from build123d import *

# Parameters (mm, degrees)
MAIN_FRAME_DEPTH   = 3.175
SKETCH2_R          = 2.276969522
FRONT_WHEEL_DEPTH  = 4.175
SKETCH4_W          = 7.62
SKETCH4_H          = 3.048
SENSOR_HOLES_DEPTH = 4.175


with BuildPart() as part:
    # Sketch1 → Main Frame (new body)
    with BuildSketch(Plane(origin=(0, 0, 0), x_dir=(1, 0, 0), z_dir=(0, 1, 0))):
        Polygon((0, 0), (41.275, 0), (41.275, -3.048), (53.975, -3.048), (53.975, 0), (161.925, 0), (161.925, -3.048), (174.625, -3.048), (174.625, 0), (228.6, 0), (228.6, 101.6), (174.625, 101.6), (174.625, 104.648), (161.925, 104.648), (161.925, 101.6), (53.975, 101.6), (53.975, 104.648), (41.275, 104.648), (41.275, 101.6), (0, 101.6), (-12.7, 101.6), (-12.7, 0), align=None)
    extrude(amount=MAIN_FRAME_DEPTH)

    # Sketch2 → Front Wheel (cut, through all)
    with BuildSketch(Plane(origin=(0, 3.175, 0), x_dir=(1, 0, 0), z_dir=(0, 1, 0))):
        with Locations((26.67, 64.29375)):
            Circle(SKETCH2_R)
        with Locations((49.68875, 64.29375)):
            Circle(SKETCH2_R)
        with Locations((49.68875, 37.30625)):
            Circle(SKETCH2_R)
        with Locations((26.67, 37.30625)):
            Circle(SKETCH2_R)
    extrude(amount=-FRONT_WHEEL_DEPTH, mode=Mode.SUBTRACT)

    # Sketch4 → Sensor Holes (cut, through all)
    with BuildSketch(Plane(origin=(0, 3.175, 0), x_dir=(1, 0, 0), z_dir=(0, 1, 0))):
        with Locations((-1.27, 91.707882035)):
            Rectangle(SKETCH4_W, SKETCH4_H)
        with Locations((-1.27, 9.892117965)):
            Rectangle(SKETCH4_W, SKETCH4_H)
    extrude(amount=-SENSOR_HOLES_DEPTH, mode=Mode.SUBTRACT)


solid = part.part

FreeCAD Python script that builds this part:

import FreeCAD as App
import Part
import Sketcher

V = App.Vector
Q = App.Units.Quantity


def add_polygon(sketch, points):
    """Adds a closed chain of lines whose ends are joined by coincident constraints."""
    first, n = sketch.GeometryCount, len(points)
    for a, b in zip(points, points[1:] + points[:1]):
        sketch.addGeometry(Part.LineSegment(App.Vector(*a, 0), App.Vector(*b, 0)), False)
    for i in range(n):
        sketch.addConstraint(Sketcher.Constraint("Coincident", first + i, 2, first + (i + 1) % n, 1))

doc = App.newDocument("Part")
body = doc.addObject("PartDesign::Body", "Body")

sketch1 = doc.addObject("Sketcher::SketchObject", "Sketch")
body.addObject(sketch1)
sketch1.AttachmentSupport = (doc.XZ_Plane, [""])
sketch1.MapMode = "FlatFace"
add_polygon(sketch1, [(41.3, 0), (41.3, 3), (54, 3), (54, 0), (161.9, 0), (161.9, 3), (174.6, 3), (174.6, 0), (228.6, 0), (228.6, -101.6), (174.6, -101.6), (174.6, -104.6), (161.9, -104.6), (161.9, -101.6), (54, -101.6), (54, -104.6), (41.3, -104.6), (41.3, -101.6), (-12.7, -101.6), (-12.7, 0)])
sketch1.addConstraint([
    Sketcher.Constraint("Vertical", 0),
    Sketcher.Constraint("Horizontal", 1),
    Sketcher.Constraint("Vertical", 2),
    Sketcher.Constraint("Horizontal", 3),
    Sketcher.Constraint("Vertical", 4),
    Sketcher.Constraint("Horizontal", 5),
    Sketcher.Constraint("Vertical", 6),
    Sketcher.Constraint("Horizontal", 7),
    Sketcher.Constraint("Vertical", 8),
    Sketcher.Constraint("Horizontal", 9),
    Sketcher.Constraint("Vertical", 10),
    Sketcher.Constraint("Horizontal", 11),
    Sketcher.Constraint("Vertical", 12),
    Sketcher.Constraint("Horizontal", 13),
    Sketcher.Constraint("Vertical", 14),
    Sketcher.Constraint("Horizontal", 15),
    Sketcher.Constraint("Vertical", 16),
    Sketcher.Constraint("Horizontal", 17),
    Sketcher.Constraint("Vertical", 18),
    Sketcher.Constraint("Horizontal", 19),
    Sketcher.Constraint("PointOnObject", 2, 2, -1),
    Sketcher.Constraint("PointOnObject", 6, 2, -1),
    Sketcher.Constraint("PointOnObject", 18, 2, -1),
    Sketcher.Constraint("Horizontal", 1, 2, 4, 2),
    Sketcher.Constraint("Horizontal", 9, 2, 12, 2),
    Sketcher.Constraint("Horizontal", 11, 2, 14, 2),
    Sketcher.Constraint("Horizontal", 13, 2, 16, 2),
    Sketcher.Constraint("Vertical", 6, 2, 9, 2),
    Sketcher.Constraint("Vertical", 4, 2, 11, 2),
    Sketcher.Constraint("Vertical", 2, 2, 13, 2),
    Sketcher.Constraint("Vertical", 0, 2, 15, 2),
    Sketcher.Constraint("Equal", 1, 5),
    Sketcher.Constraint("Equal", 9, 17),
    Sketcher.Constraint("Equal", 6, 10),
    Sketcher.Constraint("DistanceY", 8, 2, 8, 1, Q("4 in")),
    Sketcher.Constraint("DistanceX", 1, 1, 1, 2, Q("0.5 in")),
    Sketcher.Constraint("DistanceX", -1, 1, 7, 2, Q("9 in")),
    Sketcher.Constraint("DistanceX", 3, 1, 3, 2, Q("4.25 in")),
    Sketcher.Constraint("DistanceY", 0, 1, 0, 2, Q("0.12 in")),
    Sketcher.Constraint("DistanceX", 17, 2, -1, 1, Q("0.5 in")),
])
pad1 = doc.addObject("PartDesign::Pad", "Pad")
body.addObject(pad1)
pad1.Profile = sketch1
pad1.Length = Q("0.125 in")
pad1.Reversed = True

sketch2 = doc.addObject("Sketcher::SketchObject", "Sketch001")
body.addObject(sketch2)
sketch2.AttachmentSupport = (doc.XZ_Plane, [""])
sketch2.MapMode = "FlatFace"
sketch2.AttachmentOffset = App.Placement(V(0, 0, -0.125 * 25.4), App.Rotation())
sketch2.addGeometry([
    Part.Circle(V(26.7, -64.3, 0), V(0, 0, 1), 2.3),
    Part.Circle(V(49.7, -64.3, 0), V(0, 0, 1), 2.3),
    Part.Circle(V(49.7, -37.3, 0), V(0, 0, 1), 2.3),
    Part.Circle(V(26.7, -37.3, 0), V(0, 0, 1), 2.3),
], False)
sketch2.addConstraint([
    Sketcher.Constraint("Equal", 0, 1),
    Sketcher.Constraint("Equal", 1, 2),
    Sketcher.Constraint("Equal", 2, 3),
    Sketcher.Constraint("Horizontal", 0, 3, 1, 3),
    Sketcher.Constraint("Horizontal", 2, 3, 3, 3),
    Sketcher.Constraint("Vertical", 1, 3, 2, 3),
    Sketcher.Constraint("Vertical", 0, 3, 3, 3),
    Sketcher.Constraint("DistanceX", -1, 1, 0, 3, Q("1.05 in")),
    Sketcher.Constraint("Diameter", 0, Q("4.553939 mm")),
    Sketcher.Constraint("DistanceY", 0, 3, -1, 1, Q("2.53125 in")),
    Sketcher.Constraint("DistanceY", 2, 3, -1, 1, Q("1.46875 in")),
    Sketcher.Constraint("DistanceX", 0, 3, 1, 3, Q("0.90625 in")),
])
pocket1 = doc.addObject("PartDesign::Pocket", "Pocket")
body.addObject(pocket1)
pocket1.Profile = sketch2
pocket1.Type = "ThroughAll"
pocket1.Reversed = True

sketch3 = doc.addObject("Sketcher::SketchObject", "Sketch002")
body.addObject(sketch3)
sketch3.AttachmentSupport = (doc.XZ_Plane, [""])
sketch3.MapMode = "FlatFace"
sketch3.AttachmentOffset = App.Placement(V(0, 0, -0.125 * 25.4), App.Rotation())
add_polygon(sketch3, [(-5.1, -93.2), (-5.1, -90.2), (2.5, -90.2), (2.5, -93.2)])
add_polygon(sketch3, [(-5.1, -11.4), (-5.1, -8.4), (2.5, -8.4), (2.5, -11.4)])
sketch3.addConstraint([
    Sketcher.Constraint("Vertical", 0),
    Sketcher.Constraint("Horizontal", 1),
    Sketcher.Constraint("Vertical", 2),
    Sketcher.Constraint("Horizontal", 3),
    Sketcher.Constraint("Vertical", 4),
    Sketcher.Constraint("Horizontal", 5),
    Sketcher.Constraint("Vertical", 6),
    Sketcher.Constraint("Horizontal", 7),
    Sketcher.Constraint("Vertical", 3, 2, 4, 2),
    Sketcher.Constraint("Vertical", 2, 2, 5, 2),
    Sketcher.Constraint("Equal", 2, 4),
    Sketcher.Constraint("DistanceX", 1, 1, 1, 2, Q("0.3 in")),
    Sketcher.Constraint("DistanceY", 0, 1, 0, 2, Q("0.12 in")),
    Sketcher.Constraint("DistanceX", 0, 2, -1, 1, Q("0.2 in")),
    Sketcher.Constraint("DistanceY", 0, 2, -1, 1, Q("90.183882 mm")),
    Sketcher.Constraint("DistanceY", 4, 2, -1, 1, Q("8.368118 mm")),
])
pocket2 = doc.addObject("PartDesign::Pocket", "Pocket001")
body.addObject(pocket2)
pocket2.Profile = sketch3
pocket2.Type = "ThroughAll"
pocket2.Reversed = True

doc.recompute()
